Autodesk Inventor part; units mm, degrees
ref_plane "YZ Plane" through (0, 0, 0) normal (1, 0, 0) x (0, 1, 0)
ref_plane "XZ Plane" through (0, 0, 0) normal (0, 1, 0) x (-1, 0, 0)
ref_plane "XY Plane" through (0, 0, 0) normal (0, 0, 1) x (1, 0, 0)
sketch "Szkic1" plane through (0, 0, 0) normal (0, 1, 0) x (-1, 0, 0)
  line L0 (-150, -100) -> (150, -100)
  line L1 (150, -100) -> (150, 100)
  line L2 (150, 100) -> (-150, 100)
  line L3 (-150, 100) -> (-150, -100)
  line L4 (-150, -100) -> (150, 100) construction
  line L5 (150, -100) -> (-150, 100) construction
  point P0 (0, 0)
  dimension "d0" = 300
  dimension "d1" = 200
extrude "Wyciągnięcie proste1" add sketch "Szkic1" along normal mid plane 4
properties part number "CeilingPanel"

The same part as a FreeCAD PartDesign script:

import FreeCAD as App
import Part
import Sketcher

V = App.Vector
Q = App.Units.Quantity

doc = App.newDocument("Part")
body = doc.addObject("PartDesign::Body", "Body")

# Sketch on XZ plane
sketch1 = body.newObject("Sketcher::SketchObject", "Sketch")
sketch1.AttachmentSupport = (doc.getObject("XZ_Plane"), [""])
sketch1.MapMode = "FlatFace"
sketch1.addGeometry(Part.LineSegment(V(150, 100, 0), V(150, -100, 0)), False)
sketch1.addGeometry(Part.LineSegment(V(150, -100, 0), V(-150, -100, 0)), False)
sketch1.addGeometry(Part.LineSegment(V(-150, -100, 0), V(-150, 100, 0)), False)
sketch1.addGeometry(Part.LineSegment(V(-150, 100, 0), V(150, 100, 0)), False)
sketch1.addConstraint(Sketcher.Constraint("Coincident", 0, 2, 1, 1))
sketch1.addConstraint(Sketcher.Constraint("Coincident", 1, 2, 2, 1))
sketch1.addConstraint(Sketcher.Constraint("Coincident", 2, 2, 3, 1))
sketch1.addConstraint(Sketcher.Constraint("Coincident", 3, 2, 0, 1))
sketch1.addConstraint(Sketcher.Constraint("Vertical", 0))
sketch1.addConstraint(Sketcher.Constraint("Horizontal", 1))
sketch1.addConstraint(Sketcher.Constraint("Vertical", 2))
sketch1.addConstraint(Sketcher.Constraint("Horizontal", 3))
sketch1.addConstraint(Sketcher.Constraint("Symmetric", 0, 2, 2, 2, -1, 1))
sketch1.addConstraint(Sketcher.Constraint("DistanceX", 1, 2, 1, 1, Q("300 mm")))
sketch1.addConstraint(Sketcher.Constraint("DistanceY", 0, 2, 0, 1, Q("200 mm")))
pad1 = body.newObject("PartDesign::Pad", "Pad")
pad1.Profile = sketch1
pad1.Length = 4
pad1.Midplane = True

doc.recompute()
